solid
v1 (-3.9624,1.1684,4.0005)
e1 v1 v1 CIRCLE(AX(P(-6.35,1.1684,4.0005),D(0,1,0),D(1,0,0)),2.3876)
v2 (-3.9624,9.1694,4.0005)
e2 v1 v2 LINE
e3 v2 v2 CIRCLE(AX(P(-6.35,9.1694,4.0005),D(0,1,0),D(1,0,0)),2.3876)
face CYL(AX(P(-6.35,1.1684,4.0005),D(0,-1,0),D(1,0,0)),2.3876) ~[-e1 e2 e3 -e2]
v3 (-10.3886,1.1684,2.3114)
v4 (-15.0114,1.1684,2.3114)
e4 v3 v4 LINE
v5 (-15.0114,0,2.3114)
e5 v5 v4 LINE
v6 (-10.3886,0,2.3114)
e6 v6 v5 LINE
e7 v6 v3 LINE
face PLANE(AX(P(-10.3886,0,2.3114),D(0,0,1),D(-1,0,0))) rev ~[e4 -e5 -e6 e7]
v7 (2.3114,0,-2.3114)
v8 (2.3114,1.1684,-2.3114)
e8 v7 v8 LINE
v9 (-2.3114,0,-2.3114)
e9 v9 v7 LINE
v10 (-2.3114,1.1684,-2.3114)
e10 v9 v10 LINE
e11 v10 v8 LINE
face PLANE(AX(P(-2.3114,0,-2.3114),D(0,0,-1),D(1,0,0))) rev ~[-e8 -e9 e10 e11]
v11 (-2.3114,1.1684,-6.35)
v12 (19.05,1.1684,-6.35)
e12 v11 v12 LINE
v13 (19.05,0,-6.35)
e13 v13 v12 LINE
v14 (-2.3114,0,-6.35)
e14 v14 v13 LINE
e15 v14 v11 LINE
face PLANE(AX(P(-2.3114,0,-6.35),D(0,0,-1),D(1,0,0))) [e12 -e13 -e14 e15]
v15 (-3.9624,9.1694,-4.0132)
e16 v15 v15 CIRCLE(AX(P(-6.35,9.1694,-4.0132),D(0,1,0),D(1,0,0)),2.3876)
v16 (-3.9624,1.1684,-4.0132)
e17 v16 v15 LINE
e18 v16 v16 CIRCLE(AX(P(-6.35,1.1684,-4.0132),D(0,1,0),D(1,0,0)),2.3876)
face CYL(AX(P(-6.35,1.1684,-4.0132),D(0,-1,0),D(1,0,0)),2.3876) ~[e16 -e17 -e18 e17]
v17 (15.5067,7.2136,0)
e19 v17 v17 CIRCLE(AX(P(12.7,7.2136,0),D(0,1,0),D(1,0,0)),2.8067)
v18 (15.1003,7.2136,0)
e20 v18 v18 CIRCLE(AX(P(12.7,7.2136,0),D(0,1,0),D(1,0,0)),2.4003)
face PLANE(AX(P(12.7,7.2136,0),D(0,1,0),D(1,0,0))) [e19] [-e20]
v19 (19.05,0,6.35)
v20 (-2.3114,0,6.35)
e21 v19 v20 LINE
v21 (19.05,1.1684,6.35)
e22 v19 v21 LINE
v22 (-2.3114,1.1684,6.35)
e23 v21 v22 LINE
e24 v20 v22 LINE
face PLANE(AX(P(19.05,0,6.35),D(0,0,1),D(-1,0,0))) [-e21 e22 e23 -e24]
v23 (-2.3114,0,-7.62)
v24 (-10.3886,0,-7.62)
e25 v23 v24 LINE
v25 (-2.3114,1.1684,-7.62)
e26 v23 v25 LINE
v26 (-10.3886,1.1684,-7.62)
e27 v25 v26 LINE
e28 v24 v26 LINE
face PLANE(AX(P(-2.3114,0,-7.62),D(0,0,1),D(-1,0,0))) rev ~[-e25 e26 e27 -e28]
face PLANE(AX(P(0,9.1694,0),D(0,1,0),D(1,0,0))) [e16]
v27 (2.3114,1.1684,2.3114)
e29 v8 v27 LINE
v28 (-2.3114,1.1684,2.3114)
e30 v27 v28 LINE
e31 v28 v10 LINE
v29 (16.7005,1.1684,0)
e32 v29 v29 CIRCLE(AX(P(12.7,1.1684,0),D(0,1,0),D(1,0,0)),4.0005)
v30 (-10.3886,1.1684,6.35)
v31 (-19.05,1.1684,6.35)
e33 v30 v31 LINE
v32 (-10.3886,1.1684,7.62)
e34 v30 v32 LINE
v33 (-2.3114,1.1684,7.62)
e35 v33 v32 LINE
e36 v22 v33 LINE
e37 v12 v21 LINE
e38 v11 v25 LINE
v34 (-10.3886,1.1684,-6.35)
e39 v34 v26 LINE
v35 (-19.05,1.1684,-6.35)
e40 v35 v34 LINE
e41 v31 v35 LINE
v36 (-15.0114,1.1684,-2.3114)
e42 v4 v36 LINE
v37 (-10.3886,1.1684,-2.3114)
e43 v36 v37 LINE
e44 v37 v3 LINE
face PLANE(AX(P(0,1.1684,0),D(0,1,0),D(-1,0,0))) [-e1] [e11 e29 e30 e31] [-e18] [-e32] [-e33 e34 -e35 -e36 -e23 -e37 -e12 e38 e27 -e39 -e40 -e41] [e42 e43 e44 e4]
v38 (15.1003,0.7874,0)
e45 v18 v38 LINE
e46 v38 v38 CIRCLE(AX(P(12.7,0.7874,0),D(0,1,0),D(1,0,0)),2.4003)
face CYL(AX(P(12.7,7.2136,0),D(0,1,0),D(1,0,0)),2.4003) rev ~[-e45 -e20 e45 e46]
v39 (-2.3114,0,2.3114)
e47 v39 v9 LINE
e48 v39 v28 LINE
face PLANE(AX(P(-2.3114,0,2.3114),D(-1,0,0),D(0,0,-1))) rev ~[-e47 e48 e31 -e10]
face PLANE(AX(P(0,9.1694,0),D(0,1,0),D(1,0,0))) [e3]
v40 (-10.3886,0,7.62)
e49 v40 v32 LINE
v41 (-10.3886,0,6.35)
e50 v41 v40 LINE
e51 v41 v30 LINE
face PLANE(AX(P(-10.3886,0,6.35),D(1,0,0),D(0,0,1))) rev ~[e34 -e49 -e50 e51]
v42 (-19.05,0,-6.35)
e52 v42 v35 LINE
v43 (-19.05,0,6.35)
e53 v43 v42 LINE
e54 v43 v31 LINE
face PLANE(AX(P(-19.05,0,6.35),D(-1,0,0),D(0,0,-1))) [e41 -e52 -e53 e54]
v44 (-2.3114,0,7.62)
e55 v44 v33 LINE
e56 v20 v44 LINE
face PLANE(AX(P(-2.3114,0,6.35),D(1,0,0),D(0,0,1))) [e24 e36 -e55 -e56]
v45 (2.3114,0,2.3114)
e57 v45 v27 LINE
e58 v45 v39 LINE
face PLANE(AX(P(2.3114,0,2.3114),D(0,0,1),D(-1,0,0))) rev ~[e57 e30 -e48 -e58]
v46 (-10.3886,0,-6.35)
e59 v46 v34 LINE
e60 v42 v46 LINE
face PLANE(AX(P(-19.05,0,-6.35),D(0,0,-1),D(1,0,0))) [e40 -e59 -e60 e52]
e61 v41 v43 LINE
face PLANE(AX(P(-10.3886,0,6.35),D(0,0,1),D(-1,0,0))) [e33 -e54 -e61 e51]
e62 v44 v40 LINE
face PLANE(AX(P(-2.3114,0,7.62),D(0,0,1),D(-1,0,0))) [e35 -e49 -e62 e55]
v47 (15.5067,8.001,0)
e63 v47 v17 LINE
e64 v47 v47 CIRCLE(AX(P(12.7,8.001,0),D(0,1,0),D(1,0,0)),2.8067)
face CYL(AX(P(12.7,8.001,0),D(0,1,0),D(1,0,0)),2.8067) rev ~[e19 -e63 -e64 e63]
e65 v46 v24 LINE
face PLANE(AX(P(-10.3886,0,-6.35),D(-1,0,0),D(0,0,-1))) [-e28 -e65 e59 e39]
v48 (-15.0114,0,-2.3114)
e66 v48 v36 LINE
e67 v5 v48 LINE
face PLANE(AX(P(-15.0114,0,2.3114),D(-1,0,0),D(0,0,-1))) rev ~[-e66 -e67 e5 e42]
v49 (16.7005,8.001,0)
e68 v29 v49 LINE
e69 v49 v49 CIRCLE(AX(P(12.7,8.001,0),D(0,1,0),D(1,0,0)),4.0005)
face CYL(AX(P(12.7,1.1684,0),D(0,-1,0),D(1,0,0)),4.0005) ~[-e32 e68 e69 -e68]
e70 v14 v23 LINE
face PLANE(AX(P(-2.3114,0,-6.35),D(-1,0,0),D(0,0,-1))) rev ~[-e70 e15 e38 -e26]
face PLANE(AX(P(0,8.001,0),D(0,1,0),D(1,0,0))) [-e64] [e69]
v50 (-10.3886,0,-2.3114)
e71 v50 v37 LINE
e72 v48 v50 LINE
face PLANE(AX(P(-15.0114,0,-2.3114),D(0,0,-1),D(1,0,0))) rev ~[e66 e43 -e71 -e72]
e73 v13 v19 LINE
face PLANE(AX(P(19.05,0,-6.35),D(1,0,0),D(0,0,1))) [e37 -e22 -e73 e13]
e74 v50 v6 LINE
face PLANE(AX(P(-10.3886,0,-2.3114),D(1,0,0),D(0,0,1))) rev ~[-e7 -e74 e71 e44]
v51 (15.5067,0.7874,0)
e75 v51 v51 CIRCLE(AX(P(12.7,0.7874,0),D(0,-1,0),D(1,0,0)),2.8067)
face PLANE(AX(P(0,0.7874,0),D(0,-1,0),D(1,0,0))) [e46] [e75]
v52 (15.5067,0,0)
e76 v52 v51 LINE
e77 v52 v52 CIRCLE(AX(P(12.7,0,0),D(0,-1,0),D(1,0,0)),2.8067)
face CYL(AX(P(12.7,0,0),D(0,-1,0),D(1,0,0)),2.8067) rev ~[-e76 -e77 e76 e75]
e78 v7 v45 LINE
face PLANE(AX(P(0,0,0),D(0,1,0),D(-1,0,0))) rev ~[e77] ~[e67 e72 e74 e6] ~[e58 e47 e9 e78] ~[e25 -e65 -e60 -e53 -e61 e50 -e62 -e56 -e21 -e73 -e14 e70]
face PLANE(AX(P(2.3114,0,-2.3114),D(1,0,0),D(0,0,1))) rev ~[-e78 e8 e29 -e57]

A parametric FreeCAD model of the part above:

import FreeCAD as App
import Part
import Sketcher

V = App.Vector
Q = App.Units.Quantity

doc = App.newDocument("Part")
params = doc.addObject("Spreadsheet::Sheet", "Params")
for row, (alias, value) in enumerate([
    ("sketch1_height", "0.5 in"),
    ("sketch1_height2", "0.05 in"),
    ("sketch1_width", "0.182 in"),
    ("pad1_length", "0.046 in"),
    ("sketch2_diameter", "0.188 in"),
    ("pad2_length", "0.315 in"),
    ("sketch3_diameter", "0.188 in"),
    ("pad3_length", "0.315 in"),
    ("sketch4_diameter", "0.315 in"),
    ("pad4_length", "0.269 in"),
    ("sketch5_diameter", "0.221 in"),
    ("pocket1_length", "0.031 in"),
    ("sketch6_diameter", "0.189 in"),
    ("sketch7_diameter", "0.221 in"),
    ("pocket3_length", "0.031 in"),
], start=1):
    params.set(f"A{row}", alias)
    params.set(f"B{row}", "=" + value)
    params.setAlias(f"B{row}", alias)

body = doc.addObject("PartDesign::Body", "Body")

# Sketch on XZ plane
sketch1 = doc.addObject("Sketcher::SketchObject", "Sketch")
body.addObject(sketch1)
sketch1.AttachmentSupport = (doc.XZ_Plane, [""])
sketch1.MapMode = "FlatFace"
sketch1.addGeometry([
    Part.LineSegment(V(-2.3114, 6.35, 0), V(19.05, 6.35, 0)),  # 0
    Part.LineSegment(V(19.05, 6.35, 0), V(19.05, -6.35, 0)),  # 1
    Part.LineSegment(V(19.05, -6.35, 0), V(-2.3114, -6.35, 0)),  # 2
    Part.LineSegment(V(-2.3114, -6.35, 0), V(-2.3114, -7.62, 0)),  # 3
    Part.LineSegment(V(-2.3114, -7.62, 0), V(-10.3886, -7.62, 0)),  # 4
    Part.LineSegment(V(-10.3886, -7.62, 0), V(-10.3886, -6.35, 0)),  # 5
    Part.LineSegment(V(-10.3886, -6.35, 0), V(-19.05, -6.35, 0)),  # 6
    Part.LineSegment(V(-19.05, -6.35, 0), V(-19.05, 6.35, 0)),  # 7
    Part.LineSegment(V(-19.05, 6.35, 0), V(-10.3886, 6.35, 0)),  # 8
    Part.LineSegment(V(-10.3886, 6.35, 0), V(-10.3886, 7.62, 0)),  # 9
    Part.LineSegment(V(-10.3886, 7.62, 0), V(-2.3114, 7.62, 0)),  # 10
    Part.LineSegment(V(-2.3114, 7.62, 0), V(-2.3114, 6.35, 0)),  # 11
    Part.LineSegment(V(2.3114, -2.3114, 0), V(2.3114, 2.3114, 0)),  # 12
    Part.LineSegment(V(2.3114, 2.3114, 0), V(-2.3114, 2.3114, 0)),  # 13
    Part.LineSegment(V(-2.3114, 2.3114, 0), V(-2.3114, -2.3114, 0)),  # 14
    Part.LineSegment(V(-2.3114, -2.3114, 0), V(2.3114, -2.3114, 0)),  # 15
    Part.LineSegment(V(-10.3886, -2.3114, 0), V(-10.3886, 2.3114, 0)),  # 16
    Part.LineSegment(V(-10.3886, 2.3114, 0), V(-15.0114, 2.3114, 0)),  # 17
    Part.LineSegment(V(-15.0114, 2.3114, 0), V(-15.0114, -2.3114, 0)),  # 18
    Part.LineSegment(V(-15.0114, -2.3114, 0), V(-10.3886, -2.3114, 0)),  # 19
], False)
sketch1.addConstraint([
    Sketcher.Constraint("Coincident", 0, 2, 1, 1),
    Sketcher.Constraint("Coincident", 1, 2, 2, 1),
    Sketcher.Constraint("Coincident", 2, 2, 3, 1),
    Sketcher.Constraint("Coincident", 3, 2, 4, 1),
    Sketcher.Constraint("Coincident", 4, 2, 5, 1),
    Sketcher.Constraint("Coincident", 5, 2, 6, 1),
    Sketcher.Constraint("Coincident", 6, 2, 7, 1),
    Sketcher.Constraint("Coincident", 7, 2, 8, 1),
    Sketcher.Constraint("Coincident", 8, 2, 9, 1),
    Sketcher.Constraint("Coincident", 9, 2, 10, 1),
    Sketcher.Constraint("Coincident", 10, 2, 11, 1),
    Sketcher.Constraint("Coincident", 11, 2, 0, 1),
    Sketcher.Constraint("Coincident", 12, 2, 13, 1),
    Sketcher.Constraint("Coincident", 13, 2, 14, 1),
    Sketcher.Constraint("Coincident", 14, 2, 15, 1),
    Sketcher.Constraint("Coincident", 15, 2, 12, 1),
    Sketcher.Constraint("Coincident", 16, 2, 17, 1),
    Sketcher.Constraint("Coincident", 17, 2, 18, 1),
    Sketcher.Constraint("Coincident", 18, 2, 19, 1),
    Sketcher.Constraint("Coincident", 19, 2, 16, 1),
    Sketcher.Constraint("Horizontal", 0),
    Sketcher.Constraint("Vertical", 1),
    Sketcher.Constraint("Horizontal", 2),
    Sketcher.Constraint("Vertical", 3),
    Sketcher.Constraint("Horizontal", 4),
    Sketcher.Constraint("Vertical", 5),
    Sketcher.Constraint("Horizontal", 6),
    Sketcher.Constraint("Vertical", 7),
    Sketcher.Constraint("Horizontal", 8),
    Sketcher.Constraint("Vertical", 9),
    Sketcher.Constraint("Horizontal", 10),
    Sketcher.Constraint("Vertical", 11),
    Sketcher.Constraint("Vertical", 12),
    Sketcher.Constraint("Horizontal", 13),
    Sketcher.Constraint("Vertical", 14),
    Sketcher.Constraint("Horizontal", 15),
    Sketcher.Constraint("Vertical", 16),
    Sketcher.Constraint("Horizontal", 17),
    Sketcher.Constraint("Vertical", 18),
    Sketcher.Constraint("Horizontal", 19),
    Sketcher.Constraint("Symmetric", 0, 2, 6, 2, -1, 1),
    Sketcher.Constraint("Symmetric", 12, 2, 14, 2, -1, 1),
    Sketcher.Constraint("Symmetric", 5, 2, 8, 2, -1),
    Sketcher.Constraint("Symmetric", 3, 2, 10, 2, -1),
    Sketcher.Constraint("Horizontal", 2, 2, 5, 2),
    Sketcher.Constraint("Horizontal", 13, 2, 16, 2),
    Sketcher.Constraint("Horizontal", 15, 2, 18, 2),
    Sketcher.Constraint("Vertical", 11, 2, 13, 2),
    Sketcher.Constraint("Vertical", 9, 2, 16, 2),
    Sketcher.Constraint("Equal", 15, 17),
    Sketcher.Constraint("Equal", 19, 12),
    Sketcher.Constraint("DistanceY", 1, 2, 1, 1, Q("0.5 in")),
    Sketcher.Constraint("DistanceY", 3, 2, 3, 1, Q("0.05 in")),
    Sketcher.Constraint("DistanceX", 6, 2, 1, 2, Q("1.5 in")),
    Sketcher.Constraint("DistanceX", 8, 2, 12, 2, Q("0.5 in")),
    Sketcher.Constraint("DistanceX", 13, 2, 13, 1, Q("0.182 in")),
])
sketch1.setExpression("Constraints[51]", "Params.sketch1_height")
sketch1.setExpression("Constraints[52]", "Params.sketch1_height2")
sketch1.setExpression("Constraints[55]", "Params.sketch1_width")
pad1 = doc.addObject("PartDesign::Pad", "Pad")
body.addObject(pad1)
pad1.Profile = sketch1
pad1.setExpression("Length", "Params.pad1_length")
pad1.Reversed = True

# Sketch on XZ plane
sketch2 = doc.addObject("Sketcher::SketchObject", "Sketch001")
body.addObject(sketch2)
sketch2.AttachmentSupport = (doc.XZ_Plane, [""])
sketch2.MapMode = "FlatFace"
sketch2.AttachmentOffset = App.Placement(V(0, 0, -0.046 * 25.4), App.Rotation())
sketch2.addGeometry(Part.Circle(V(-6.35, 4.0005, 0), V(0, 0, 1), 2.3876), False)
sketch2.addConstraint([
    Sketcher.Constraint("Diameter", 0, Q("0.188 in")),
    Sketcher.Constraint("DistanceX", 0, 3, -1, 1, Q("0.25 in")),
    Sketcher.Constraint("DistanceY", -1, 1, 0, 3, Q("0.1575 in")),
])
sketch2.setExpression("Constraints[0]", "Params.sketch2_diameter")
pad2 = doc.addObject("PartDesign::Pad", "Pad001")
body.addObject(pad2)
pad2.Profile = sketch2
pad2.setExpression("Length", "Params.pad2_length")
pad2.Reversed = True

# Sketch on XZ plane
sketch3 = doc.addObject("Sketcher::SketchObject", "Sketch002")
body.addObject(sketch3)
sketch3.AttachmentSupport = (doc.XZ_Plane, [""])
sketch3.MapMode = "FlatFace"
sketch3.AttachmentOffset = App.Placement(V(0, 0, -0.046 * 25.4), App.Rotation())
sketch3.addGeometry(Part.Circle(V(-6.35, -4.0132, 0), V(0, 0, 1), 2.3876), False)
sketch3.addConstraint([
    Sketcher.Constraint("Diameter", 0, Q("0.188 in")),
    Sketcher.Constraint("DistanceX", 0, 3, -1, 1, Q("0.25 in")),
    Sketcher.Constraint("DistanceY", 0, 3, -1, 1, Q("0.158 in")),
])
sketch3.setExpression("Constraints[0]", "Params.sketch3_diameter")
pad3 = doc.addObject("PartDesign::Pad", "Pad002")
body.addObject(pad3)
pad3.Profile = sketch3
pad3.setExpression("Length", "Params.pad3_length")
pad3.Reversed = True

# Sketch on XZ plane
sketch4 = doc.addObject("Sketcher::SketchObject", "Sketch003")
body.addObject(sketch4)
sketch4.AttachmentSupport = (doc.XZ_Plane, [""])
sketch4.MapMode = "FlatFace"
sketch4.AttachmentOffset = App.Placement(V(0, 0, -0.046 * 25.4), App.Rotation())
sketch4.addGeometry(Part.Circle(V(12.7, 0, 0), V(0, 0, 1), 4.0005), False)
sketch4.addConstraint([
    Sketcher.Constraint("PointOnObject", 0, 3, -1),
    Sketcher.Constraint("Diameter", 0, Q("0.315 in")),
    Sketcher.Constraint("DistanceX", -1, 1, 0, 3, Q("0.5 in")),
])
sketch4.setExpression("Constraints[1]", "Params.sketch4_diameter")
pad4 = doc.addObject("PartDesign::Pad", "Pad003")
body.addObject(pad4)
pad4.Profile = sketch4
pad4.setExpression("Length", "Params.pad4_length")
pad4.Reversed = True

# Sketch on XZ plane
sketch5 = doc.addObject("Sketcher::SketchObject", "Sketch004")
body.addObject(sketch5)
sketch5.AttachmentSupport = (doc.XZ_Plane, [""])
sketch5.MapMode = "FlatFace"
sketch5.AttachmentOffset = App.Placement(V(0, 0, -0.315 * 25.4), App.Rotation())
sketch5.addGeometry(Part.Circle(V(12.7, 0, 0), V(0, 0, 1), 2.8067), False)
sketch5.addConstraint([
    Sketcher.Constraint("PointOnObject", 0, 3, -1),
    Sketcher.Constraint("Diameter", 0, Q("0.221 in")),
    Sketcher.Constraint("DistanceX", -1, 1, 0, 3, Q("0.5 in")),
])
sketch5.setExpression("Constraints[1]", "Params.sketch5_diameter")
pocket1 = doc.addObject("PartDesign::Pocket", "Pocket")
body.addObject(pocket1)
pocket1.Profile = sketch5
pocket1.setExpression("Length", "Params.pocket1_length")
pocket1.Reversed = True

# Sketch on XZ plane
sketch6 = doc.addObject("Sketcher::SketchObject", "Sketch005")
body.addObject(sketch6)
sketch6.AttachmentSupport = (doc.XZ_Plane, [""])
sketch6.MapMode = "FlatFace"
sketch6.AttachmentOffset = App.Placement(V(0, 0, -0.284 * 25.4), App.Rotation())
sketch6.addGeometry(Part.Circle(V(12.7, 0, 0), V(0, 0, 1), 2.4003), False)
sketch6.addConstraint([
    Sketcher.Constraint("PointOnObject", 0, 3, -1),
    Sketcher.Constraint("Diameter", 0, Q("0.189 in")),
    Sketcher.Constraint("DistanceX", -1, 1, 0, 3, Q("0.5 in")),
])
sketch6.setExpression("Constraints[1]", "Params.sketch6_diameter")
pocket2 = doc.addObject("PartDesign::Pocket", "Pocket001")
body.addObject(pocket2)
pocket2.Profile = sketch6
pocket2.Type = "ThroughAll"
pocket2.Reversed = True

# Sketch on XZ plane
sketch7 = doc.addObject("Sketcher::SketchObject", "Sketch006")
body.addObject(sketch7)
sketch7.AttachmentSupport = (doc.XZ_Plane, [""])
sketch7.MapMode = "FlatFace"
sketch7.addGeometry(Part.Circle(V(12.7, 0, 0), V(0, 0, 1), 2.8067), False)
sketch7.addConstraint([
    Sketcher.Constraint("PointOnObject", 0, 3, -1),
    Sketcher.Constraint("Diameter", 0, Q("0.221 in")),
    Sketcher.Constraint("DistanceX", -1, 1, 0, 3, Q("0.5 in")),
])
sketch7.setExpression("Constraints[1]", "Params.sketch7_diameter")
pocket3 = doc.addObject("PartDesign::Pocket", "Pocket002")
body.addObject(pocket3)
pocket3.Profile = sketch7
pocket3.setExpression("Length", "Params.pocket3_length")

doc.recompute()
